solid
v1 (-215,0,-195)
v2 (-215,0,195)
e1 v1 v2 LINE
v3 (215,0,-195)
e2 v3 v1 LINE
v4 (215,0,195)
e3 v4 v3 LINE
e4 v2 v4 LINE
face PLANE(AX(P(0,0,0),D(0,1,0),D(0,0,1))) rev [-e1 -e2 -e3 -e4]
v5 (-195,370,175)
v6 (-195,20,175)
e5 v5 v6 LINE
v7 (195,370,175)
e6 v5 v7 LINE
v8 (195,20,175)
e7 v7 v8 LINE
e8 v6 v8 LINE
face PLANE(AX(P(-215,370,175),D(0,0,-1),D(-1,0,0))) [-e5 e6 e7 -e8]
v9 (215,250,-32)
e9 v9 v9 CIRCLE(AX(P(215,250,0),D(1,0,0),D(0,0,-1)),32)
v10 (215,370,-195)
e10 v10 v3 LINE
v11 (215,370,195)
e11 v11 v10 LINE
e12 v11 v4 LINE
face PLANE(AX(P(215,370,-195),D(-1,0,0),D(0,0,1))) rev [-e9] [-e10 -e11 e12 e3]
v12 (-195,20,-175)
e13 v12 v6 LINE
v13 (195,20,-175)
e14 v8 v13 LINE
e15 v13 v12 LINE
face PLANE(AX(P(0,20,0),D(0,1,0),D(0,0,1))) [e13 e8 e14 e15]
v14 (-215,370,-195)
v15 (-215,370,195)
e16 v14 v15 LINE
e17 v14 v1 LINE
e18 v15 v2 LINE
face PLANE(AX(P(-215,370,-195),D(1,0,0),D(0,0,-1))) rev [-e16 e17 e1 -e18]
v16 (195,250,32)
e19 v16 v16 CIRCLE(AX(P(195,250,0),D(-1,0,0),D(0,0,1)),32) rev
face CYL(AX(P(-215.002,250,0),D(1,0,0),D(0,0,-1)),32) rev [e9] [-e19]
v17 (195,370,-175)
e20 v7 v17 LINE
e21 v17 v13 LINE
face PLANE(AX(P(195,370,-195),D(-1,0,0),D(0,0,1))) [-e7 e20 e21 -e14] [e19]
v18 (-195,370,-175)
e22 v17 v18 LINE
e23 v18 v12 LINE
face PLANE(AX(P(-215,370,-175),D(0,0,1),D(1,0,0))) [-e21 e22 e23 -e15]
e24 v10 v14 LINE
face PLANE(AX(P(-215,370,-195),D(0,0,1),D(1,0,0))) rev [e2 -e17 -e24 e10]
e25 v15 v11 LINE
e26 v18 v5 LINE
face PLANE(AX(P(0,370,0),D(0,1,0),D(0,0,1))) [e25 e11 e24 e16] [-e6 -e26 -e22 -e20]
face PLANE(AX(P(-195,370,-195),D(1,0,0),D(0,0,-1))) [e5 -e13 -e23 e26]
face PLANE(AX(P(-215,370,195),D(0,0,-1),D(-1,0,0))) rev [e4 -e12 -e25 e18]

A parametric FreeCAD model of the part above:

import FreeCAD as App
import Part
import Sketcher

V = App.Vector


def faces_at(feature, points):
    """Names of the faces that lie closest to the given points."""
    faces = feature.Shape.Faces
    near = lambda p: min(range(len(faces)), key=lambda i: faces[i].distToShape(Part.Vertex(*p))[0])
    return sorted({f"Face{near(p) + 1}" for p in points})

doc = App.newDocument("Part")
body = doc.addObject("PartDesign::Body", "Body")

# Sketch on XZ plane
sketch1 = body.newObject("Sketcher::SketchObject", "Sketch")
sketch1.AttachmentSupport = (doc.getObject("XZ_Plane"), [""])
sketch1.MapMode = "FlatFace"
sketch1.addGeometry([
    Part.LineSegment(V(-215, -195, 0), V(-215, 195, 0)),
    Part.LineSegment(V(-215, 195, 0), V(215, 195, 0)),
    Part.LineSegment(V(215, 195, 0), V(215, -195, 0)),
    Part.LineSegment(V(215, -195, 0), V(-215, -195, 0)),
], False)
sketch1.addConstraint([
    Sketcher.Constraint("Coincident", 0, 2, 1, 1),
    Sketcher.Constraint("Coincident", 1, 2, 2, 1),
    Sketcher.Constraint("Coincident", 2, 2, 3, 1),
    Sketcher.Constraint("Coincident", 3, 2, 0, 1),
    Sketcher.Constraint("Vertical", 0),
    Sketcher.Constraint("Horizontal", 1),
    Sketcher.Constraint("Vertical", 2),
    Sketcher.Constraint("Horizontal", 3),
    Sketcher.Constraint("Symmetric", 0, 2, 2, 2, -1, 1),
    Sketcher.Constraint("DistanceX", 1, 1, 1, 2, 430.0),
    Sketcher.Constraint("DistanceY", 0, 1, 0, 2, 390.0),
])
pad1 = body.newObject("PartDesign::Pad", "Pad")
pad1.Profile = sketch1
pad1.Length = 370
pad1.Reversed = True
doc.recompute()

thickness = body.newObject("PartDesign::Thickness", "Thickness")
thickness.Base = (pad1, faces_at(pad1, [(0, 370, 0)]))
thickness.Value = 20
thickness.Reversed = True
thickness.Join = "Intersection"

# Sketch on YZ plane
sketch2 = body.newObject("Sketcher::SketchObject", "Sketch001")
sketch2.AttachmentSupport = (doc.getObject("YZ_Plane"), [""])
sketch2.MapMode = "FlatFace"
sketch2.AttachmentOffset = App.Placement(V(0, 0, 215), App.Rotation())
sketch2.addGeometry(Part.Circle(V(250, 0, 0), V(0, 0, 1), 32), False)
sketch2.addConstraint([
    Sketcher.Constraint("PointOnObject", 0, 3, -1),
    Sketcher.Constraint("Diameter", 0, 64.0),
    Sketcher.Constraint("DistanceX", -1, 1, 0, 3, 250.0),
])
pocket1 = body.newObject("PartDesign::Pocket", "Pocket")
pocket1.Profile = sketch2
pocket1.Type = "UpToFirst"

doc.recompute()
